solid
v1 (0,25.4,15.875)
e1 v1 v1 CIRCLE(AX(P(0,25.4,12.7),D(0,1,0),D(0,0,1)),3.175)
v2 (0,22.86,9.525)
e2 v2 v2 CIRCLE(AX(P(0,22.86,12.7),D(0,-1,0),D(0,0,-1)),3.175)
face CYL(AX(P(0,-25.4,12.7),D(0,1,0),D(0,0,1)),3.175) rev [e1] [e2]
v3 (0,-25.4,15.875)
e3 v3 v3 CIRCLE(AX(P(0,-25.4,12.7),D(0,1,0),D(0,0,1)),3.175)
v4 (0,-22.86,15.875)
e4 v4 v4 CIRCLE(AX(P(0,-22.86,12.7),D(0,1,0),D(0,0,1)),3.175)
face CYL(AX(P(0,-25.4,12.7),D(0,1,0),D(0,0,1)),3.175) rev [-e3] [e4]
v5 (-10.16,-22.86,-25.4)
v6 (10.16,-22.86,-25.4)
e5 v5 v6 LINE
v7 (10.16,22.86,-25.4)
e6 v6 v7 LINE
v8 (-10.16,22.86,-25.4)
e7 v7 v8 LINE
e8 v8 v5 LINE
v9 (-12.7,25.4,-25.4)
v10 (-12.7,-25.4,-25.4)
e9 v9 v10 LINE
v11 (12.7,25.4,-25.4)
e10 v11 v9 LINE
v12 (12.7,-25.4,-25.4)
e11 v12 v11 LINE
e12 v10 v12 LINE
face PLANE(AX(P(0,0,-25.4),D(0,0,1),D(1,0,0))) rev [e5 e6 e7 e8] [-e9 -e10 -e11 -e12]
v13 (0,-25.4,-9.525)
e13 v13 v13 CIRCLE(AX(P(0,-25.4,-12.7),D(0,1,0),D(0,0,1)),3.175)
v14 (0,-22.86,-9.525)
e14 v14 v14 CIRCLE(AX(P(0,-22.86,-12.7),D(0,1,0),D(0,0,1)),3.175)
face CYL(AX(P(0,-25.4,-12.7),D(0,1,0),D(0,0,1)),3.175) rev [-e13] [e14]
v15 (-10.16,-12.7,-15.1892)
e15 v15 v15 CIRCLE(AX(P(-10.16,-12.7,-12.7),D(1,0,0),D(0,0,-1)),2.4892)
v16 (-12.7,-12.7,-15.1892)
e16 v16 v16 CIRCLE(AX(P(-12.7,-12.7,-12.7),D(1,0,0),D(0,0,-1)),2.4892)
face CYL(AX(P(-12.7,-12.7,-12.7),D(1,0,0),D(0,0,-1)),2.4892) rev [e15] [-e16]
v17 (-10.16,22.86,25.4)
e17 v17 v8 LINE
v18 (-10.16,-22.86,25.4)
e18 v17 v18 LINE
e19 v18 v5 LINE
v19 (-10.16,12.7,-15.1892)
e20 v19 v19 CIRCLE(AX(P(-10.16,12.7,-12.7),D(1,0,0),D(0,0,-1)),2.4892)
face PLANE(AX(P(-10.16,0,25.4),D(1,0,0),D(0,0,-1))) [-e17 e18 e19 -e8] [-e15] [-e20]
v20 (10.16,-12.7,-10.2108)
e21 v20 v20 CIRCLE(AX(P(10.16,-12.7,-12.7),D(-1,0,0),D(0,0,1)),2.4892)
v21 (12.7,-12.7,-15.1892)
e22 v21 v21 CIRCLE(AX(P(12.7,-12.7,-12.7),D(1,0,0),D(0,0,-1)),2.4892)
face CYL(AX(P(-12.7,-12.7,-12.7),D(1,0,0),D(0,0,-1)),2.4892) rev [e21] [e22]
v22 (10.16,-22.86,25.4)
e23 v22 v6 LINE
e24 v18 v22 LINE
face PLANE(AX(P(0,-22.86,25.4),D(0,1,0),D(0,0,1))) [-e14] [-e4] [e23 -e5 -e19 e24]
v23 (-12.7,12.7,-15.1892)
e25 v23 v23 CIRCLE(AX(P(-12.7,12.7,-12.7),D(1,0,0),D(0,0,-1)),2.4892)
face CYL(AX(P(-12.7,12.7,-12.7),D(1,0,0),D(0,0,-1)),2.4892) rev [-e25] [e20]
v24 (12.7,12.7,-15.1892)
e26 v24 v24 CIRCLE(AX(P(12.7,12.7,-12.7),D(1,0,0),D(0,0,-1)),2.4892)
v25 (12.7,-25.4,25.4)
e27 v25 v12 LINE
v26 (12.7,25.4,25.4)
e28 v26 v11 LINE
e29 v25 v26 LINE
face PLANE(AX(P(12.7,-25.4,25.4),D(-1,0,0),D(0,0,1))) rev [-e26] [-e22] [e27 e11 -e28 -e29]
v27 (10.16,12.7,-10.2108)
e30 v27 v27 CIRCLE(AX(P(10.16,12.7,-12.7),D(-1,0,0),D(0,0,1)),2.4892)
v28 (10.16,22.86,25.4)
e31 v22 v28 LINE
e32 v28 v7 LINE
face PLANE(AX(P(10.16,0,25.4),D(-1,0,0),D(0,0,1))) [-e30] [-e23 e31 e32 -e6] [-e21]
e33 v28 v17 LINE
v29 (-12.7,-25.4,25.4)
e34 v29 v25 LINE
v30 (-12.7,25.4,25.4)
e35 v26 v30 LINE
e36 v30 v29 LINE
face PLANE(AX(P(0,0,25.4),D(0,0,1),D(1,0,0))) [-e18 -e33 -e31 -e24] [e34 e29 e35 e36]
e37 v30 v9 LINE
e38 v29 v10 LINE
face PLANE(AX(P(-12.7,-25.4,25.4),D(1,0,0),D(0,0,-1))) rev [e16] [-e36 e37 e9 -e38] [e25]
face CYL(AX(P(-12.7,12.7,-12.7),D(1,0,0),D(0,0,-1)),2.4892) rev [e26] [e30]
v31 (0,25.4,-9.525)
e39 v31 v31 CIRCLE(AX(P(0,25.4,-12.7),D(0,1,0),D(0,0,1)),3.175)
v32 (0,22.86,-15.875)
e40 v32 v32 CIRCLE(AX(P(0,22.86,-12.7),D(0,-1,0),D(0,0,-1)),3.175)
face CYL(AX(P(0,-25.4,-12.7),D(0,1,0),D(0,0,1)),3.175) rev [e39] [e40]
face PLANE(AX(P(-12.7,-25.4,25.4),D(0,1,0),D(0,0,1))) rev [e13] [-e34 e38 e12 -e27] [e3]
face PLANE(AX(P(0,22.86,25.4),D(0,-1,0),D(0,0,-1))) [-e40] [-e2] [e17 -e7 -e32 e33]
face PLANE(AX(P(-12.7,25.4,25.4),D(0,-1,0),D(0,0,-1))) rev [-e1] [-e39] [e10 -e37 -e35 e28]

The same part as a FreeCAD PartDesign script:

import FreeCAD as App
import Part
import Sketcher

V = App.Vector
Q = App.Units.Quantity


def add_polygon(sketch, points):
    """Adds a closed chain of lines whose ends are joined by coincident constraints."""
    first, n = sketch.GeometryCount, len(points)
    for a, b in zip(points, points[1:] + points[:1]):
        sketch.addGeometry(Part.LineSegment(App.Vector(*a, 0), App.Vector(*b, 0)), False)
    for i in range(n):
        sketch.addConstraint(Sketcher.Constraint("Coincident", first + i, 2, first + (i + 1) % n, 1))

doc = App.newDocument("Part")
params = doc.addObject("Spreadsheet::Sheet", "Params")
for row, (alias, value) in enumerate([
    ("sketch1_width", "1 in"),
    ("sketch1_height", "2 in"),
    ("sketch1_width2", "0.8 in"),
    ("sketch1_height2", "1.8 in"),
    ("pad1_length", "2 in"),
    ("sketch2_diameter", "0.25 in"),
    ("sketch3_diameter", "0.196 in"),
], start=1):
    params.set(f"A{row}", alias)
    params.set(f"B{row}", "=" + value)
    params.setAlias(f"B{row}", alias)

body = doc.addObject("PartDesign::Body", "Body")

sketch1 = body.newObject("Sketcher::SketchObject", "Sketch")
sketch1.AttachmentSupport = (doc.getObject("XY_Plane"), [""])
sketch1.MapMode = "FlatFace"
add_polygon(sketch1, [(-13, 25), (-13, -25), (13, -25), (13, 25)])
add_polygon(sketch1, [(10, -23), (-10, -23), (-10, 23), (10, 23)])
sketch1.addConstraint(Sketcher.Constraint("Vertical", 0))
sketch1.addConstraint(Sketcher.Constraint("Horizontal", 1))
sketch1.addConstraint(Sketcher.Constraint("Vertical", 2))
sketch1.addConstraint(Sketcher.Constraint("Horizontal", 3))
sketch1.addConstraint(Sketcher.Constraint("Horizontal", 4))
sketch1.addConstraint(Sketcher.Constraint("Vertical", 5))
sketch1.addConstraint(Sketcher.Constraint("Horizontal", 6))
sketch1.addConstraint(Sketcher.Constraint("Vertical", 7))
sketch1.addConstraint(Sketcher.Constraint("Symmetric", 0, 2, 2, 2, -1, 1))
sketch1.addConstraint(Sketcher.Constraint("Symmetric", 4, 2, 6, 2, -1, 1))
sketch1.addConstraint(Sketcher.Constraint("DistanceX", 1, 1, 1, 2, Q("1 in")))
sketch1.addConstraint(Sketcher.Constraint("DistanceY", 0, 2, 0, 1, Q("2 in")))
sketch1.addConstraint(Sketcher.Constraint("DistanceX", 4, 2, 4, 1, Q("0.8 in")))
sketch1.addConstraint(Sketcher.Constraint("DistanceY", 5, 1, 5, 2, Q("1.8 in")))
sketch1.setExpression("Constraints[18]", "Params.sketch1_width")
sketch1.setExpression("Constraints[19]", "Params.sketch1_height")
sketch1.setExpression("Constraints[20]", "Params.sketch1_width2")
sketch1.setExpression("Constraints[21]", "Params.sketch1_height2")
pad1 = body.newObject("PartDesign::Pad", "Pad")
pad1.Profile = sketch1
pad1.setExpression("Length", "Params.pad1_length")
pad1.Midplane = True

sketch2 = body.newObject("Sketcher::SketchObject", "Sketch001")
sketch2.AttachmentSupport = (doc.getObject("XZ_Plane"), [""])
sketch2.MapMode = "FlatFace"
sketch2.AttachmentOffset = App.Placement(V(0, 0, -1 * 25.4), App.Rotation())
sketch2.addGeometry(Part.Circle(V(0, -12.7, 0), V(0, 0, 1), 3.2), False)
sketch2.addGeometry(Part.Circle(V(0, 12.7, 0), V(0, 0, 1), 3.2), False)
sketch2.addConstraint(Sketcher.Constraint("Equal", 0, 1))
sketch2.addConstraint(Sketcher.Constraint("Symmetric", 0, 3, 1, 3, -1, 1))
sketch2.addConstraint(Sketcher.Constraint("PointOnObject", 0, 3, -2))
sketch2.addConstraint(Sketcher.Constraint("Diameter", 0, Q("0.25 in")))
sketch2.addConstraint(Sketcher.Constraint("DistanceY", 0, 3, 1, 3, Q("1 in")))
sketch2.setExpression("Constraints[3]", "Params.sketch2_diameter")
pocket1 = body.newObject("PartDesign::Pocket", "Pocket")
pocket1.Profile = sketch2
pocket1.Type = "ThroughAll"
pocket1.Reversed = True

sketch3 = body.newObject("Sketcher::SketchObject", "Sketch002")
sketch3.AttachmentSupport = (doc.getObject("YZ_Plane"), [""])
sketch3.MapMode = "FlatFace"
sketch3.AttachmentOffset = App.Placement(V(0, 0, 0.5 * 25.4), App.Rotation())
sketch3.addGeometry(Part.Circle(V(12.7, -12.7, 0), V(0, 0, 1), 2.5), False)
sketch3.addGeometry(Part.Circle(V(-12.7, -12.7, 0), V(0, 0, 1), 2.5), False)
sketch3.addConstraint(Sketcher.Constraint("Equal", 0, 1))
sketch3.addConstraint(Sketcher.Constraint("Symmetric", 0, 3, 1, 3, -2))
sketch3.addConstraint(Sketcher.Constraint("Diameter", 0, Q("0.196 in")))
sketch3.addConstraint(Sketcher.Constraint("DistanceX", 1, 3, 0, 3, Q("1 in")))
sketch3.addConstraint(Sketcher.Constraint("DistanceY", 0, 3, -1, 1, Q("0.5 in")))
sketch3.setExpression("Constraints[2]", "Params.sketch3_diameter")
pocket2 = body.newObject("PartDesign::Pocket", "Pocket001")
pocket2.Profile = sketch3
pocket2.Type = "ThroughAll"

doc.recompute()
